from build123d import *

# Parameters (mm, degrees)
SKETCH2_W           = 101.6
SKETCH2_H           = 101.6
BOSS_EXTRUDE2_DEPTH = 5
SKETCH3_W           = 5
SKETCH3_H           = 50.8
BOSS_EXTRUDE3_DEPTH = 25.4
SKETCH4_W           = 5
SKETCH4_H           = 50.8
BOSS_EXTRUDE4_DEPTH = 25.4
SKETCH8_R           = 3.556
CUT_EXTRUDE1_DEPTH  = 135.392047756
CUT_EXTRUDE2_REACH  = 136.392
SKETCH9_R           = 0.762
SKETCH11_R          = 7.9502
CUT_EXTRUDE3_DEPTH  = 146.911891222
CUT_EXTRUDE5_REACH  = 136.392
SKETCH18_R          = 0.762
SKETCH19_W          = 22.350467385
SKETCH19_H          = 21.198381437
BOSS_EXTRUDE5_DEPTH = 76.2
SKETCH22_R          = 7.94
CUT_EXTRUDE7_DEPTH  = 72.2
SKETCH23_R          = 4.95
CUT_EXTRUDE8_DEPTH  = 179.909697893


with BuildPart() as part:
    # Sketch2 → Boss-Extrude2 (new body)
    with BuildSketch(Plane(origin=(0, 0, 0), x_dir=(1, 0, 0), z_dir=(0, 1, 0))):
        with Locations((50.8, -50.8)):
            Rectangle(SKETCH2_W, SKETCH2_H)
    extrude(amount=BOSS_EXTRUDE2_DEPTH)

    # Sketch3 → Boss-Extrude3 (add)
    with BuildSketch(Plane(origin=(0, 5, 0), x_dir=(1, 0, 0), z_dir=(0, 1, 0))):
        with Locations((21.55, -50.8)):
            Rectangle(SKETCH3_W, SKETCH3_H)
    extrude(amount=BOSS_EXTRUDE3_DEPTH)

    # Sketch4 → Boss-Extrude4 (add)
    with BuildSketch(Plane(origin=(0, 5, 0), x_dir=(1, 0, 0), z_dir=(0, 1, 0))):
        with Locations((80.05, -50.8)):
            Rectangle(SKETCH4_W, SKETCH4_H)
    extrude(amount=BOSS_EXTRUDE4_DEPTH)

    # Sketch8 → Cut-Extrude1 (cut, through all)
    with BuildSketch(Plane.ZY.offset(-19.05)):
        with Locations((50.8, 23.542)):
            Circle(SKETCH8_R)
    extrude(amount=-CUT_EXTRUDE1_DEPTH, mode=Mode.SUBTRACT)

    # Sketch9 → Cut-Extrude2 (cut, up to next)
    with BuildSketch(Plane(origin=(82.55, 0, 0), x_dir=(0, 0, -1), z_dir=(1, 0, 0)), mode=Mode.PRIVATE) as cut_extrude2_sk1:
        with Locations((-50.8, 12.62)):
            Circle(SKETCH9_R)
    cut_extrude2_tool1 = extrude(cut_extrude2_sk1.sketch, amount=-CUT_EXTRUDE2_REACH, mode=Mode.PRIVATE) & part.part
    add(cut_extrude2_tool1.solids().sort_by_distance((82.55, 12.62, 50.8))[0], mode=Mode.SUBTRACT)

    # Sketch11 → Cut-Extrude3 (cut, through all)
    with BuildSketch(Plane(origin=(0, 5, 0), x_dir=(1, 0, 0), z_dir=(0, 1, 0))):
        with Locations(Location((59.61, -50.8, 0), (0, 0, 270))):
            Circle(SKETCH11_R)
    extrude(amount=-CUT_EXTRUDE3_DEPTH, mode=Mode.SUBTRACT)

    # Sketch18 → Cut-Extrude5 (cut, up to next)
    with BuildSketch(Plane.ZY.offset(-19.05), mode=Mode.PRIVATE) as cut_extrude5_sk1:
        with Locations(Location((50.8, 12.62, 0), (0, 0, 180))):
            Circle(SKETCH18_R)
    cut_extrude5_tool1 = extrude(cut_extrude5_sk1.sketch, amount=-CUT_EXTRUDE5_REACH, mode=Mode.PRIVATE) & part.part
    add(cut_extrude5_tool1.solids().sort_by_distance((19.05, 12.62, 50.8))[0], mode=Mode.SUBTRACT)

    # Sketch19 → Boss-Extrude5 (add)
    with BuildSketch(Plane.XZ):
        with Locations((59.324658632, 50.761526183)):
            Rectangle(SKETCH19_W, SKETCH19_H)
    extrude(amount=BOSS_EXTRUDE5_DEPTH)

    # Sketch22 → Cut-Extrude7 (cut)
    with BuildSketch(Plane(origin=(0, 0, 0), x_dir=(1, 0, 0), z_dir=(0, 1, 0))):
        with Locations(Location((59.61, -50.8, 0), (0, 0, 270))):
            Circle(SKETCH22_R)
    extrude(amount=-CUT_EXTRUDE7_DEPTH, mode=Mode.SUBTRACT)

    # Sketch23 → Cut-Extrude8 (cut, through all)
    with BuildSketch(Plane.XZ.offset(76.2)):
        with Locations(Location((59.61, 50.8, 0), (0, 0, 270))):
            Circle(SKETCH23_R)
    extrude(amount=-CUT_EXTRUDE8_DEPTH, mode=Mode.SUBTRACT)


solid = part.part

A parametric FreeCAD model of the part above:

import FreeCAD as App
import Part
import Sketcher

V = App.Vector
Q = App.Units.Quantity


def add_polygon(sketch, points):
    """Adds a closed chain of lines whose ends are joined by coincident constraints."""
    first, n = sketch.GeometryCount, len(points)
    for a, b in zip(points, points[1:] + points[:1]):
        sketch.addGeometry(Part.LineSegment(App.Vector(*a, 0), App.Vector(*b, 0)), False)
    for i in range(n):
        sketch.addConstraint(Sketcher.Constraint("Coincident", first + i, 2, first + (i + 1) % n, 1))

doc = App.newDocument("Part")
body = doc.addObject("PartDesign::Body", "Body")

# Sketch on XZ plane
sketch1 = doc.addObject("Sketcher::SketchObject", "Sketch")
body.addObject(sketch1)
sketch1.AttachmentSupport = (doc.XZ_Plane, [""])
sketch1.MapMode = "FlatFace"
add_polygon(sketch1, [(0, 0), (0, 102), (102, 102), (102, 0)])  # lines 0-3
sketch1.addConstraint([
    Sketcher.Constraint("Vertical", 0),
    Sketcher.Constraint("Horizontal", 1),
    Sketcher.Constraint("Vertical", 2),
    Sketcher.Constraint("Horizontal", 3),
    Sketcher.Constraint("Coincident", 3, 2, -1, 1),
    Sketcher.Constraint("Equal", 3, 0),
    Sketcher.Constraint("DistanceX", 1, 1, 1, 2, Q("4 in")),
])
pad1 = doc.addObject("PartDesign::Pad", "Pad")
body.addObject(pad1)
pad1.Profile = sketch1
pad1.Length = 5
pad1.Reversed = True

# Sketch on XZ plane
sketch2 = doc.addObject("Sketcher::SketchObject", "Sketch001")
body.addObject(sketch2)
sketch2.AttachmentSupport = (doc.XZ_Plane, [""])
sketch2.MapMode = "FlatFace"
sketch2.AttachmentOffset = App.Placement(V(0, 0, -5), App.Rotation())
add_polygon(sketch2, [(19, 25), (19, 76), (24, 76), (24, 25)])  # lines 0-3
sketch2.addConstraint([
    Sketcher.Constraint("Vertical", 0),
    Sketcher.Constraint("Horizontal", 1),
    Sketcher.Constraint("Vertical", 2),
    Sketcher.Constraint("Horizontal", 3),
    Sketcher.Constraint("DistanceY", 0, 1, 0, 2, Q("2 in")),
    Sketcher.Constraint("DistanceY", -1, 1, 0, 2, Q("3 in")),
    Sketcher.Constraint("DistanceX", -1, 1, 0, 2, Q("0.75 in")),
    Sketcher.Constraint("DistanceX", 1, 1, 1, 2, Q("5 mm")),
])
pad2 = doc.addObject("PartDesign::Pad", "Pad001")
body.addObject(pad2)
pad2.Profile = sketch2
pad2.Length = Q("1 in")
pad2.Reversed = True

# Sketch on XZ plane
sketch3 = doc.addObject("Sketcher::SketchObject", "Sketch002")
body.addObject(sketch3)
sketch3.AttachmentSupport = (doc.XZ_Plane, [""])
sketch3.MapMode = "FlatFace"
sketch3.AttachmentOffset = App.Placement(V(0, 0, -5), App.Rotation())
add_polygon(sketch3, [(78, 25), (78, 76), (83, 76), (83, 25)])  # lines 0-3
sketch3.addConstraint([
    Sketcher.Constraint("Vertical", 0),
    Sketcher.Constraint("Horizontal", 1),
    Sketcher.Constraint("Vertical", 2),
    Sketcher.Constraint("Horizontal", 3),
    Sketcher.Constraint("DistanceY", 0, 1, 0, 2, Q("2 in")),
    Sketcher.Constraint("DistanceY", -1, 1, 0, 2, Q("3 in")),
    Sketcher.Constraint("DistanceX", -1, 1, 1, 2, Q("3.25 in")),
    Sketcher.Constraint("DistanceX", 1, 1, 1, 2, Q("5 mm")),
])
pad3 = doc.addObject("PartDesign::Pad", "Pad002")
body.addObject(pad3)
pad3.Profile = sketch3
pad3.Length = Q("1 in")
pad3.Reversed = True

# Sketch on YZ plane
sketch4 = doc.addObject("Sketcher::SketchObject", "Sketch003")
body.addObject(sketch4)
sketch4.AttachmentSupport = (doc.YZ_Plane, [""])
sketch4.MapMode = "FlatFace"
sketch4.AttachmentOffset = App.Placement(V(0, 0, 0.75 * 25.4), App.Rotation())
sketch4.addGeometry(Part.Circle(V(23.5, 50.8, 0), V(0, 0, 1), 3.6), False)
sketch4.addConstraint([
    Sketcher.Constraint("Diameter", 0, Q("0.28 in")),
    Sketcher.Constraint("DistanceY", -1, 1, 0, 3, Q("2 in")),
    Sketcher.Constraint("DistanceX", -1, 1, 0, 3, Q("23.542 mm")),
])
pocket1 = doc.addObject("PartDesign::Pocket", "Pocket")
body.addObject(pocket1)
pocket1.Profile = sketch4
pocket1.Type = "ThroughAll"
pocket1.Reversed = True

# Sketch on YZ plane
sketch5 = doc.addObject("Sketcher::SketchObject", "Sketch004")
body.addObject(sketch5)
sketch5.AttachmentSupport = (doc.YZ_Plane, [""])
sketch5.MapMode = "FlatFace"
sketch5.AttachmentOffset = App.Placement(V(0, 0, 3.25 * 25.4), App.Rotation())
sketch5.addGeometry(Part.Circle(V(12.6, 50.8, 0), V(0, 0, 1), 0.8), False)
sketch5.addConstraint([
    Sketcher.Constraint("Diameter", 0, Q("0.06 in")),
    Sketcher.Constraint("DistanceY", -1, 1, 0, 3, Q("2 in")),
    Sketcher.Constraint("DistanceX", -1, 1, 0, 3, Q("12.62 mm")),
])
pocket2 = doc.addObject("PartDesign::Pocket", "Pocket001")
body.addObject(pocket2)
pocket2.Profile = sketch5
pocket2.Type = "UpToFirst"

# Sketch on XZ plane
sketch6 = doc.addObject("Sketcher::SketchObject", "Sketch005")
body.addObject(sketch6)
sketch6.AttachmentSupport = (doc.XZ_Plane, [""])
sketch6.MapMode = "FlatFace"
sketch6.AttachmentOffset = App.Placement(V(0, 0, -5), App.Rotation())
sketch6.addGeometry(Part.Circle(V(60, 51, 0), V(0, 0, 1), 8), False)
sketch6.addConstraint([
    Sketcher.Constraint("Diameter", 0, Q("0.626 in")),
    Sketcher.Constraint("DistanceY", -1, 1, 0, 3, Q("2 in")),
    Sketcher.Constraint("DistanceX", -1, 1, 0, 3, Q("59.61 mm")),
])
pocket3 = doc.addObject("PartDesign::Pocket", "Pocket002")
body.addObject(pocket3)
pocket3.Profile = sketch6
pocket3.Type = "ThroughAll"
pocket3.Reversed = True

# Sketch on YZ plane
sketch7 = doc.addObject("Sketcher::SketchObject", "Sketch006")
body.addObject(sketch7)
sketch7.AttachmentSupport = (doc.YZ_Plane, [""])
sketch7.MapMode = "FlatFace"
sketch7.AttachmentOffset = App.Placement(V(0, 0, 0.75 * 25.4), App.Rotation())
sketch7.addGeometry(Part.Circle(V(12.6, 50.8, 0), V(0, 0, 1), 0.8), False)
sketch7.addConstraint([
    Sketcher.Constraint("Diameter", 0, Q("0.06 in")),
    Sketcher.Constraint("DistanceY", -1, 1, 0, 3, Q("2 in")),
    Sketcher.Constraint("DistanceX", -1, 1, 0, 3, Q("12.62 mm")),
])
pocket4 = doc.addObject("PartDesign::Pocket", "Pocket003")
body.addObject(pocket4)
pocket4.Profile = sketch7
pocket4.Type = "UpToFirst"
pocket4.Reversed = True

# Sketch on XZ plane
sketch8 = doc.addObject("Sketcher::SketchObject", "Sketch007")
body.addObject(sketch8)
sketch8.AttachmentSupport = (doc.XZ_Plane, [""])
sketch8.MapMode = "FlatFace"
add_polygon(sketch8, [(48, 61), (48, 40), (70, 40), (70, 61)])  # lines 0-3
sketch8.addConstraint([
    Sketcher.Constraint("Vertical", 0),
    Sketcher.Constraint("Horizontal", 1),
    Sketcher.Constraint("Vertical", 2),
    Sketcher.Constraint("Horizontal", 3),
    Sketcher.Constraint("DistanceY", 0, 2, 0, 1, Q("21.198381 mm")),
    Sketcher.Constraint("DistanceX", 1, 1, 1, 2, Q("22.350467 mm")),
    Sketcher.Constraint("DistanceX", -1, 1, 0, 2, Q("48.149425 mm")),
    Sketcher.Constraint("DistanceY", -1, 1, 0, 2, Q("40.162335 mm")),
])
pad4 = doc.addObject("PartDesign::Pad", "Pad003")
body.addObject(pad4)
pad4.Profile = sketch8
pad4.Length = Q("3 in")

# Sketch on XZ plane
sketch9 = doc.addObject("Sketcher::SketchObject", "Sketch008")
body.addObject(sketch9)
sketch9.AttachmentSupport = (doc.XZ_Plane, [""])
sketch9.MapMode = "FlatFace"
sketch9.addGeometry(Part.Circle(V(60, 51, 0), V(0, 0, 1), 8), False)
sketch9.addConstraint([
    Sketcher.Constraint("DistanceY", -1, 1, 0, 3, Q("2 in")),
    Sketcher.Constraint("Diameter", 0, Q("15.88 mm")),
    Sketcher.Constraint("DistanceX", -1, 1, 0, 3, Q("59.61 mm")),
])
pocket5 = doc.addObject("PartDesign::Pocket", "Pocket004")
body.addObject(pocket5)
pocket5.Profile = sketch9
pocket5.Length = 72.2
pocket5.Reversed = True

# Sketch on XZ plane
sketch10 = doc.addObject("Sketcher::SketchObject", "Sketch009")
body.addObject(sketch10)
sketch10.AttachmentSupport = (doc.XZ_Plane, [""])
sketch10.MapMode = "FlatFace"
sketch10.AttachmentOffset = App.Placement(V(0, 0, 3 * 25.4), App.Rotation())
sketch10.addGeometry(Part.Circle(V(59.6, 50.8, 0), V(0, 0, 1), 5), False)
sketch10.addConstraint([
    Sketcher.Constraint("DistanceY", -1, 1, 0, 3, Q("2 in")),
    Sketcher.Constraint("Diameter", 0, Q("9.9 mm")),
    Sketcher.Constraint("DistanceX", -1, 1, 0, 3, Q("59.61 mm")),
])
pocket6 = doc.addObject("PartDesign::Pocket", "Pocket005")
body.addObject(pocket6)
pocket6.Profile = sketch10
pocket6.Type = "ThroughAll"

doc.recompute()
